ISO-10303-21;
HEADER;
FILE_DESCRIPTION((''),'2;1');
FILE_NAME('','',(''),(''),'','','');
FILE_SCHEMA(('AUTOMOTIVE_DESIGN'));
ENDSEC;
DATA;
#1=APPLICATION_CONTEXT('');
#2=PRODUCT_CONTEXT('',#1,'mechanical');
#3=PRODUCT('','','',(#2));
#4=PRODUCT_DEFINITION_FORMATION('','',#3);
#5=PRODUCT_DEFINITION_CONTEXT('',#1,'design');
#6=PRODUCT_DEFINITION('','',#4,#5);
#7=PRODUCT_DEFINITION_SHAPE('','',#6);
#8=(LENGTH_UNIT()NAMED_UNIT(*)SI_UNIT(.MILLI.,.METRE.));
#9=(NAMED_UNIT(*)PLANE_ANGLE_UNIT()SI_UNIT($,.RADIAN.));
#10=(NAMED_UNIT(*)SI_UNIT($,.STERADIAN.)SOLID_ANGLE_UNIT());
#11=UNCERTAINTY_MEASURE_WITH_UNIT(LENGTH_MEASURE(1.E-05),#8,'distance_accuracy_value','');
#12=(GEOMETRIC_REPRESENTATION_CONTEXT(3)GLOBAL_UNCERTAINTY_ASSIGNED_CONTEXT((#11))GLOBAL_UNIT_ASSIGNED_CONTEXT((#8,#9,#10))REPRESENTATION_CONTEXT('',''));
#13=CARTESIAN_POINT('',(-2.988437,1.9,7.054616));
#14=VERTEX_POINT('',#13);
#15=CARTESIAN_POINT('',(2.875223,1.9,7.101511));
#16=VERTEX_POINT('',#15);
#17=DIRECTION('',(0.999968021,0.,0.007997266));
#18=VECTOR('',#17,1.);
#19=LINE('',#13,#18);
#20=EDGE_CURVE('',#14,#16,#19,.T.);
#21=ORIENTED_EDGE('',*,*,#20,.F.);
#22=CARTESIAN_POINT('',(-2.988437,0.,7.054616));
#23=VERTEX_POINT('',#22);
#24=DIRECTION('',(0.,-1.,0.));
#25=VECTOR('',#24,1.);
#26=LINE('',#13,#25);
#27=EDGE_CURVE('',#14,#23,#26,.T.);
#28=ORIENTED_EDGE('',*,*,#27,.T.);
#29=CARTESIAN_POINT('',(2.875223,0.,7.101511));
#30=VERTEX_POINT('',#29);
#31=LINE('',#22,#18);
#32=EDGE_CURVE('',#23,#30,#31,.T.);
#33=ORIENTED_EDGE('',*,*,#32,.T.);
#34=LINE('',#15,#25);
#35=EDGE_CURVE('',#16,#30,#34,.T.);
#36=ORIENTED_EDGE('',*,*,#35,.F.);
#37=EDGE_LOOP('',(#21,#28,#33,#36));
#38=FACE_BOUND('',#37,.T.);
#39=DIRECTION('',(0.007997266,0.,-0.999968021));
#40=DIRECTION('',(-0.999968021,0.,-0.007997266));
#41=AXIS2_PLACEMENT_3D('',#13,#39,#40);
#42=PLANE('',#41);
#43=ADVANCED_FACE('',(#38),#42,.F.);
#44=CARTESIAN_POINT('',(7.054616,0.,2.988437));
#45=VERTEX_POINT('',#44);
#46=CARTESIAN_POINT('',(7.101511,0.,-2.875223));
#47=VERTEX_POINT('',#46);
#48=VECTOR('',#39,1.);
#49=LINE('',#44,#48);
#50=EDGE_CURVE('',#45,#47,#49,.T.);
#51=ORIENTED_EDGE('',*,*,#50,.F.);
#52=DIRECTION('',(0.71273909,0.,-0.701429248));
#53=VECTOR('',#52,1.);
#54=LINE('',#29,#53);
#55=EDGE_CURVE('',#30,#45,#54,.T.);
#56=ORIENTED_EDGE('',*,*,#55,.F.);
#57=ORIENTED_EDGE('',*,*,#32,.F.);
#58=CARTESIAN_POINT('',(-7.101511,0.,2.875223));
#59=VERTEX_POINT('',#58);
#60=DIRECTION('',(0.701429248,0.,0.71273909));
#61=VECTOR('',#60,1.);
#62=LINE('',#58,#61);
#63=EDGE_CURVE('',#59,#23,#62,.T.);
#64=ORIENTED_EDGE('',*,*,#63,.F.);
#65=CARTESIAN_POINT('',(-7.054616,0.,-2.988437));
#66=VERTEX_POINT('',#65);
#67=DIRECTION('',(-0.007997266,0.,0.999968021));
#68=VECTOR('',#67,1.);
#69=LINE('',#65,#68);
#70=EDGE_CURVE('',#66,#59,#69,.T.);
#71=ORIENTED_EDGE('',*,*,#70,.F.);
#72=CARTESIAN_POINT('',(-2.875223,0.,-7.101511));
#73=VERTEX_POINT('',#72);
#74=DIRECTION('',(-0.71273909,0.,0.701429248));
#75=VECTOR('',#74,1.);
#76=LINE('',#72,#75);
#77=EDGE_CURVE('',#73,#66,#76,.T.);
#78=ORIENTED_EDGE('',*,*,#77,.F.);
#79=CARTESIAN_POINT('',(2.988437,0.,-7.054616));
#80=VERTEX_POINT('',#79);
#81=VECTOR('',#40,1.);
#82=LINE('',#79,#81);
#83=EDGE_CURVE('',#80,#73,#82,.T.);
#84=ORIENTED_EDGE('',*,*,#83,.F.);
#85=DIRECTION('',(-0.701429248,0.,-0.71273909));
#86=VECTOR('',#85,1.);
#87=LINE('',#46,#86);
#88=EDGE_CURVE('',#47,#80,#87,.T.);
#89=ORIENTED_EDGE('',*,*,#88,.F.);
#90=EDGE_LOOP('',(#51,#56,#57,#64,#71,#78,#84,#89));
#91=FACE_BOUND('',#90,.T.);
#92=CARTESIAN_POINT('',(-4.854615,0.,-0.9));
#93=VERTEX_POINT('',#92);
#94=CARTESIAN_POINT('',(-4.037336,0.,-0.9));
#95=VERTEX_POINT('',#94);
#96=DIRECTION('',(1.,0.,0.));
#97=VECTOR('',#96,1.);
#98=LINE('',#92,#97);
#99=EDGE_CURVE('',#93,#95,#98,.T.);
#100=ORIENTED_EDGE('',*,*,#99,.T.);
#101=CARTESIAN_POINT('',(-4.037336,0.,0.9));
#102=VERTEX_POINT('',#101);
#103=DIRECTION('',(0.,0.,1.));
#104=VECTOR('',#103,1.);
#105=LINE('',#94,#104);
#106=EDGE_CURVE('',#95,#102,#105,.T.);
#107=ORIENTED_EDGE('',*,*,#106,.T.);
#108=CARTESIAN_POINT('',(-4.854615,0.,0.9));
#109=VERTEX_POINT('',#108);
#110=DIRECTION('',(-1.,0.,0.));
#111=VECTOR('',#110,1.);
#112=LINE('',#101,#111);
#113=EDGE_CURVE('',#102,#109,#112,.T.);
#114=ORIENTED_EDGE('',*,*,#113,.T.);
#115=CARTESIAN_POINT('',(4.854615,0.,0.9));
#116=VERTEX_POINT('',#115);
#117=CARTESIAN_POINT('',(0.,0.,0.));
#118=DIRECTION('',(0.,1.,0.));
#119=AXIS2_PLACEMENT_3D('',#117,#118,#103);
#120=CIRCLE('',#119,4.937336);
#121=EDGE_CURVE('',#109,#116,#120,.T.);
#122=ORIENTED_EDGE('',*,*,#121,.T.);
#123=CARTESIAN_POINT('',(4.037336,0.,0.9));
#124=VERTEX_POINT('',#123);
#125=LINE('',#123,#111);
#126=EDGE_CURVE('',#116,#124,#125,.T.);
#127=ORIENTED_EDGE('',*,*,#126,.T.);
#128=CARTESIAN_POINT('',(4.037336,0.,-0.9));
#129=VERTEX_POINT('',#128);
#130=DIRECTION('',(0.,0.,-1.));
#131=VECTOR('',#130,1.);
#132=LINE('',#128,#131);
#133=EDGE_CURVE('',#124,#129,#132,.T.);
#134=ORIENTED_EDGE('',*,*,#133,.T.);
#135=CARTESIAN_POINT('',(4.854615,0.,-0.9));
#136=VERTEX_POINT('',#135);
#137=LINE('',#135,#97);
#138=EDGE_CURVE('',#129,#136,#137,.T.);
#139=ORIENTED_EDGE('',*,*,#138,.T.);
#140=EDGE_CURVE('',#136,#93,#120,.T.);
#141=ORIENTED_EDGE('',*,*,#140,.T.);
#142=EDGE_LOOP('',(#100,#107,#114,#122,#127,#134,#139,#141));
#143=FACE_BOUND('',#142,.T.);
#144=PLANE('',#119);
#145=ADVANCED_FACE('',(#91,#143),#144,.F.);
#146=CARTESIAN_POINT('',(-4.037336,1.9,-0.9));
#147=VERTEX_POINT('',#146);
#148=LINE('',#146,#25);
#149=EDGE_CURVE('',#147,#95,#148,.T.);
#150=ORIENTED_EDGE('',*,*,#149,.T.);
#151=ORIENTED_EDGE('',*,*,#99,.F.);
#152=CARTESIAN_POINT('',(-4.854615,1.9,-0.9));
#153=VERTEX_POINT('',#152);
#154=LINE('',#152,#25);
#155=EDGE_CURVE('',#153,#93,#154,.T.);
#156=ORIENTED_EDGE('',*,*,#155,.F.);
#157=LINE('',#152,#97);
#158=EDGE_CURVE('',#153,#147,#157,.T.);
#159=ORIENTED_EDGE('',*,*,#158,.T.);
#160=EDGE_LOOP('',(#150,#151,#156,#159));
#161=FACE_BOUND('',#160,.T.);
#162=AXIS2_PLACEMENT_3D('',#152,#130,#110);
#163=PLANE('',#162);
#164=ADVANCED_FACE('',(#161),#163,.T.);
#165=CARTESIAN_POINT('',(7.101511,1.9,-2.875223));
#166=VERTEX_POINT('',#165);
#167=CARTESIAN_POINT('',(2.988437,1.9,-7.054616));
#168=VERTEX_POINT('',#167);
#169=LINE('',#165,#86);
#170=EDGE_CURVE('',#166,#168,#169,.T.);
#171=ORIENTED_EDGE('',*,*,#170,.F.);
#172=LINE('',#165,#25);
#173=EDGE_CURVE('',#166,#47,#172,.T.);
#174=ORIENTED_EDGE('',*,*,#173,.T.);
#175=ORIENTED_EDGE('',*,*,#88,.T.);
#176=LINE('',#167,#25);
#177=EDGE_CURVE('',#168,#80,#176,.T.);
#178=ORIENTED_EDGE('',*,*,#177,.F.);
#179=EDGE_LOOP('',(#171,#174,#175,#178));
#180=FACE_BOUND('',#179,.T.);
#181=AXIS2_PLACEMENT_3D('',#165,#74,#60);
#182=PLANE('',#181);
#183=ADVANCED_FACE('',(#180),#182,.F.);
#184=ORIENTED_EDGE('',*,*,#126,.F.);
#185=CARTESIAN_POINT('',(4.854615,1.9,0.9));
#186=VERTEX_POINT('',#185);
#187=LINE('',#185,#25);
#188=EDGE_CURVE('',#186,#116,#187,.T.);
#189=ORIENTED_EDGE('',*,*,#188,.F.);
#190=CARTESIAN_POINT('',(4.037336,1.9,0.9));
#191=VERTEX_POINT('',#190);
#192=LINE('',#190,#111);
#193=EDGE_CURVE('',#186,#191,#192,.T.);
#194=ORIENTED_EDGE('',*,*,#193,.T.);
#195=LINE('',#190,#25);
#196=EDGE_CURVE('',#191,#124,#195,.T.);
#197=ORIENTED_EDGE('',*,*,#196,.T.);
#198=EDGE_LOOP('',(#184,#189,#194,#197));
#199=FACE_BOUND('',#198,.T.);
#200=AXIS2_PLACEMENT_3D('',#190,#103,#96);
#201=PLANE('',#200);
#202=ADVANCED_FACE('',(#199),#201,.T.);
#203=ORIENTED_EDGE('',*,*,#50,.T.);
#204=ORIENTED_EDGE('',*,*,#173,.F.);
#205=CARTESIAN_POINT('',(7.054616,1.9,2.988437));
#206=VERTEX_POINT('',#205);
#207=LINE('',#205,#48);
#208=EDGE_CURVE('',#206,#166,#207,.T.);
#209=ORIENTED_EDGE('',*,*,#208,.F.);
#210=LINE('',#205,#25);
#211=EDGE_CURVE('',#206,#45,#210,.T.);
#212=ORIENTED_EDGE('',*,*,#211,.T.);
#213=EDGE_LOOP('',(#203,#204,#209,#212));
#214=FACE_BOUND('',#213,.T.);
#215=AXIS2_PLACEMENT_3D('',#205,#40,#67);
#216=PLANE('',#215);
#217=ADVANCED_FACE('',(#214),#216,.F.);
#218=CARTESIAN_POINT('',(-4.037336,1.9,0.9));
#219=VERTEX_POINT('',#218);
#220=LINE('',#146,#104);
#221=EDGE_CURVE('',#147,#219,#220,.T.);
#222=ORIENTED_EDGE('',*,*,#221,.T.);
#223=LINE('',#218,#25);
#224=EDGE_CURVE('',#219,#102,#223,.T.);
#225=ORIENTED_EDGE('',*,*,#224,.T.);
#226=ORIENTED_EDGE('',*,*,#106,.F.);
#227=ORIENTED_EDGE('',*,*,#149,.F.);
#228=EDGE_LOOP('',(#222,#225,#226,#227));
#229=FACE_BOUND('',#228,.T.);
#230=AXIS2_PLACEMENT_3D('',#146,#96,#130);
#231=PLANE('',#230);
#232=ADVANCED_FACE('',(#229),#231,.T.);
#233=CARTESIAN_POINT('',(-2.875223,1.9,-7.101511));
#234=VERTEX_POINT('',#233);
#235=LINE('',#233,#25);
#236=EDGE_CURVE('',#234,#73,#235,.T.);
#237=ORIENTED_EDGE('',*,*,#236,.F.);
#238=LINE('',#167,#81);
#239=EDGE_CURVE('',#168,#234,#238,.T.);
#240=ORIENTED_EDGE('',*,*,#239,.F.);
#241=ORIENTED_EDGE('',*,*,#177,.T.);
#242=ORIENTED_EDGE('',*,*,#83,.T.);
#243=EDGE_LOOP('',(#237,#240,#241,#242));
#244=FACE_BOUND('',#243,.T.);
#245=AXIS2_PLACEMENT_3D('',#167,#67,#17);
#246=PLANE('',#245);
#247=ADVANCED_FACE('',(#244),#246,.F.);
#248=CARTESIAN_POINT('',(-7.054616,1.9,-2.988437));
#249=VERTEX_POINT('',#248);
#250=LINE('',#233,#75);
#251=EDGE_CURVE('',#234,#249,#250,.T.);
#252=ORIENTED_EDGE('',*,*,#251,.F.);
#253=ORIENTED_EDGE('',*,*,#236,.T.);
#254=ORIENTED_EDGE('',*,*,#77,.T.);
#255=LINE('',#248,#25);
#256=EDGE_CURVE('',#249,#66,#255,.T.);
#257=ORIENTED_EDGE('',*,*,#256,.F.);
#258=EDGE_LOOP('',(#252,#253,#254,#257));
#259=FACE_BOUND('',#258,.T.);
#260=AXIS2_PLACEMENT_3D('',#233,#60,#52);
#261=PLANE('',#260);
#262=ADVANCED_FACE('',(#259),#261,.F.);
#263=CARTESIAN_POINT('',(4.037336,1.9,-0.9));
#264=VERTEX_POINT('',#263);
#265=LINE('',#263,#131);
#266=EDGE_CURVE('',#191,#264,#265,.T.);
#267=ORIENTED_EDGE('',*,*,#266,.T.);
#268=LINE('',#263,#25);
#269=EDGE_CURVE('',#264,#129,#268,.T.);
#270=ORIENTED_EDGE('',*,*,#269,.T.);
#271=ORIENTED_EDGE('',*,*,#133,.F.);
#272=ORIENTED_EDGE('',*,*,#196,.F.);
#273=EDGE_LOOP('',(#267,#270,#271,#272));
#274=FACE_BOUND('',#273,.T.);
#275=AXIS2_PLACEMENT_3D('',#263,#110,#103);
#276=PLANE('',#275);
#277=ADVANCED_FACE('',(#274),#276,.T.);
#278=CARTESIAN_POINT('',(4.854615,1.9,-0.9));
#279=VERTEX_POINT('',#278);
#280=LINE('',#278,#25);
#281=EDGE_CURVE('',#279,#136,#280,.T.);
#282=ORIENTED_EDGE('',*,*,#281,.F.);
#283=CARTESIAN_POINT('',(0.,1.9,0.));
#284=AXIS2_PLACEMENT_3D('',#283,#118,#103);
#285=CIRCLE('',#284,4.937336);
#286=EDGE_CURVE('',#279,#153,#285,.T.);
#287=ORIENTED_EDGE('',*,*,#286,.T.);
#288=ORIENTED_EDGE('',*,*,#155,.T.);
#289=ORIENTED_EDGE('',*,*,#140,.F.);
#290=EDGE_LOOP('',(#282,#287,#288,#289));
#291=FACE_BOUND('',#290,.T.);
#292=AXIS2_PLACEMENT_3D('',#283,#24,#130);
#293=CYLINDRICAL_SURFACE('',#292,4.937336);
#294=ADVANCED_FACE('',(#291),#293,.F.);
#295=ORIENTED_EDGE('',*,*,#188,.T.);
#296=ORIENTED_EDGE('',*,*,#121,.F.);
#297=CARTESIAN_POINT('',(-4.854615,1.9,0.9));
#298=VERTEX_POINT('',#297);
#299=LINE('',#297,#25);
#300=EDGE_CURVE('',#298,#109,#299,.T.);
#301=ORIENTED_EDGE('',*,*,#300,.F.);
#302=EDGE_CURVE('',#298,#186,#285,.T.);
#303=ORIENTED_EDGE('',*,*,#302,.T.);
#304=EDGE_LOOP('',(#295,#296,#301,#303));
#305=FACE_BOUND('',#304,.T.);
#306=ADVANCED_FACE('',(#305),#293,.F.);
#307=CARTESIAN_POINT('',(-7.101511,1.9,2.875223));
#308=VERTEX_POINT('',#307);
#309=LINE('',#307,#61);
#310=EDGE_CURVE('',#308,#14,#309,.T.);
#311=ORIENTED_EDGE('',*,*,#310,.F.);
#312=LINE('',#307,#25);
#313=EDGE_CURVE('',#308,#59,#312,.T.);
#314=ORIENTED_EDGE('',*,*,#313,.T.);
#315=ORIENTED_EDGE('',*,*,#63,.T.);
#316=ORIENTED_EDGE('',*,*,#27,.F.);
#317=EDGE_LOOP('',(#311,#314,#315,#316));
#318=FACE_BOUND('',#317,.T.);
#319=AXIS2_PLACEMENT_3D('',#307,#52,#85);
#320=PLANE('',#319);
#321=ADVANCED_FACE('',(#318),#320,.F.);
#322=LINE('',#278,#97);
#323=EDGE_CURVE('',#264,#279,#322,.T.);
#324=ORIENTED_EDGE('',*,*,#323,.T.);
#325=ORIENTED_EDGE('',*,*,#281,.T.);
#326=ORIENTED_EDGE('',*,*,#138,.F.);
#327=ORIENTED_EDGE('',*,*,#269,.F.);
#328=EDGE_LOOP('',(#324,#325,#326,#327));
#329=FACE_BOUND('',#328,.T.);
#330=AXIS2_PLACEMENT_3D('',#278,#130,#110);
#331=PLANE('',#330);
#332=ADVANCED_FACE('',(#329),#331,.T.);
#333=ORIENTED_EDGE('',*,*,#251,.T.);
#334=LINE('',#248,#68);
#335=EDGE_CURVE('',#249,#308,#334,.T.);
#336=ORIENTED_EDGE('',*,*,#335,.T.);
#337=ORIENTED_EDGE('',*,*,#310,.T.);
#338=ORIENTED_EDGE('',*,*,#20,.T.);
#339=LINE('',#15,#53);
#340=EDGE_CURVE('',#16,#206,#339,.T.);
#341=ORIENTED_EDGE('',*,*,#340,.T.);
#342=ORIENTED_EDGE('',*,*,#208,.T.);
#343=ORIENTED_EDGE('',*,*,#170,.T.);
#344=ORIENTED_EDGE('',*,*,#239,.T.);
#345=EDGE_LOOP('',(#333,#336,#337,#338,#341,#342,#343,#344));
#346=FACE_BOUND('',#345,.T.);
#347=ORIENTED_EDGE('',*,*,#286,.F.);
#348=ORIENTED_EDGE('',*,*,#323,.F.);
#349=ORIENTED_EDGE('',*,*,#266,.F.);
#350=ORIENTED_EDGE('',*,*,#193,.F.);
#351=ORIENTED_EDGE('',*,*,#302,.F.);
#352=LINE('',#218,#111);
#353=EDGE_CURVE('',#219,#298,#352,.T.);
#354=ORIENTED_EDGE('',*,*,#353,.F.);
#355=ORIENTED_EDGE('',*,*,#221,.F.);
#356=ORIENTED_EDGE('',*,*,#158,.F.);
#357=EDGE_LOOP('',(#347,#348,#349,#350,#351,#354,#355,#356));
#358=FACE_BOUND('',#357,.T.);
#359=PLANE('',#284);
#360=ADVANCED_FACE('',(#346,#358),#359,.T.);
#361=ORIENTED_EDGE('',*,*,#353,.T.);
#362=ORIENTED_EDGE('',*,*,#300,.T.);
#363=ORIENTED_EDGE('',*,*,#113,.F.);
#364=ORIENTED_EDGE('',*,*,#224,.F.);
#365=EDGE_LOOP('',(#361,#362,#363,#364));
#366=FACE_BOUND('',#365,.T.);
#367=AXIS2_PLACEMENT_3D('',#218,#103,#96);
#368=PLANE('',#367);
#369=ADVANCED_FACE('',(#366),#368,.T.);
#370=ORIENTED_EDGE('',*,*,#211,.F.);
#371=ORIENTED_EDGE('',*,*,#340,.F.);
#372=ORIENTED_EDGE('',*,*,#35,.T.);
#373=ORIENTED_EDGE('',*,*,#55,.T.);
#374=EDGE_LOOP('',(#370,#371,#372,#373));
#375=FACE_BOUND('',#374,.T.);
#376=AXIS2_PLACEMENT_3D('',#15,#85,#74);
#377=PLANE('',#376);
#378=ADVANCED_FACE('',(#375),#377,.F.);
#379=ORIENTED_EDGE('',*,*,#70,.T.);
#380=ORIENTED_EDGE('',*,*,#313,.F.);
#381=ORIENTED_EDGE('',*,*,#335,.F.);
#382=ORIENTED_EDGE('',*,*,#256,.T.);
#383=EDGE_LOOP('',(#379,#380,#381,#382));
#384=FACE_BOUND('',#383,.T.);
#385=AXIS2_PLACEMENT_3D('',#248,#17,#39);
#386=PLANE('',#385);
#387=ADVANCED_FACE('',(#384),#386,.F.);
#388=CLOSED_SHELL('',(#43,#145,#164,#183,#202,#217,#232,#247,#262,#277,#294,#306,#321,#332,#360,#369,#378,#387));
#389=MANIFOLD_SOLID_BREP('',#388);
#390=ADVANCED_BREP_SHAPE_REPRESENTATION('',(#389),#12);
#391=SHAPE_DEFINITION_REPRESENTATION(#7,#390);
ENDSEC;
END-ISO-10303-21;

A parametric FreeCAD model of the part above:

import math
import FreeCAD as App
import Part
import Sketcher
from FreeCAD import Vector
Q = App.Units.Quantity


def add_polygon(sketch, points):
    """Adds a closed chain of lines whose ends are joined by coincident constraints."""
    first, n = sketch.GeometryCount, len(points)
    for a, b in zip(points, points[1:] + points[:1]):
        sketch.addGeometry(Part.LineSegment(App.Vector(*a, 0), App.Vector(*b, 0)), False)
    for i in range(n):
        sketch.addConstraint(Sketcher.Constraint("Coincident", first + i, 2, first + (i + 1) % n, 1))

doc = App.newDocument("Part")
body = doc.addObject("PartDesign::Body", "Body")

# Sketch on XZ plane
sketch1 = body.newObject("Sketcher::SketchObject", "Sketch")
sketch1.AttachmentSupport = (doc.getObject("XZ_Plane"), [""])
sketch1.MapMode = "FlatFace"
add_polygon(sketch1, [(2.9, 7.1), (7.1, 3), (7.1, -2.9), (3, -7.1), (-2.9, -7.1), (-7.1, -3), (-7.1, 2.9), (-3, 7.1)])  # lines 0-7
sketch1.addGeometry(Part.LineSegment(Vector(-4, -0.9, 0), Vector(-4.9, -0.9, 0)), False)  # 8
sketch1.addGeometry(Part.ArcOfCircle(Part.Circle(Vector(0, 0, 0), Vector(0, 0, 1), 4.9), math.radians(-169), math.radians(-11)), False)  # 9
sketch1.addGeometry(Part.LineSegment(Vector(4.9, -0.9, 0), Vector(4, -0.9, 0)), False)  # 10
sketch1.addGeometry(Part.LineSegment(Vector(4, -0.9, 0), Vector(4, 0.9, 0)), False)  # 11
sketch1.addGeometry(Part.LineSegment(Vector(4, 0.9, 0), Vector(4.9, 0.9, 0)), False)  # 12
sketch1.addGeometry(Part.ArcOfCircle(Part.Circle(Vector(0, 0, 0), Vector(0, 0, 1), 4.9), math.radians(11), math.radians(169)), False)  # 13
sketch1.addGeometry(Part.LineSegment(Vector(-4.9, 0.9, 0), Vector(-4, 0.9, 0)), False)  # 14
sketch1.addGeometry(Part.LineSegment(Vector(-4, 0.9, 0), Vector(-4, -0.9, 0)), False)  # 15
sketch1.addConstraint([
    Sketcher.Constraint("Coincident", 8, 2, 9, 1),
    Sketcher.Constraint("Coincident", 9, 2, 10, 1),
    Sketcher.Constraint("Coincident", 10, 2, 11, 1),
    Sketcher.Constraint("Coincident", 11, 2, 12, 1),
    Sketcher.Constraint("Coincident", 12, 2, 13, 1),
    Sketcher.Constraint("Coincident", 13, 2, 14, 1),
    Sketcher.Constraint("Coincident", 14, 2, 15, 1),
    Sketcher.Constraint("Coincident", 15, 2, 8, 1),
    Sketcher.Constraint("Horizontal", 8),
    Sketcher.Constraint("Horizontal", 10),
    Sketcher.Constraint("Vertical", 11),
    Sketcher.Constraint("Horizontal", 12),
    Sketcher.Constraint("Horizontal", 14),
    Sketcher.Constraint("Vertical", 15),
    Sketcher.Constraint("Coincident", 9, 3, -1, 1),
    Sketcher.Constraint("Coincident", 13, 3, -1, 1),
    Sketcher.Constraint("Equal", 9, 13),
    Sketcher.Constraint("Symmetric", 0, 2, 4, 2, -1, 1),
    Sketcher.Constraint("Symmetric", 1, 2, 5, 2, -1, 1),
    Sketcher.Constraint("Symmetric", 2, 2, 6, 2, -1, 1),
    Sketcher.Constraint("Symmetric", 3, 2, 7, 2, -1, 1),
    Sketcher.Constraint("Symmetric", 10, 2, 14, 2, -1, 1),
    Sketcher.Constraint("Perpendicular", 0, 2),
    Sketcher.Constraint("Perpendicular", 1, 3),
    Sketcher.Constraint("Horizontal", 8, 2, 9, 2),
    Sketcher.Constraint("Horizontal", 12, 2, 13, 2),
    Sketcher.Constraint("Equal", 0, 1),
    Sketcher.Constraint("Equal", 1, 2),
    Sketcher.Constraint("Equal", 2, 3),
    Sketcher.Constraint("DistanceY", 11, 1, 11, 2, Q("1.8 mm")),
    Sketcher.Constraint("DistanceX", 4, 2, 8, 2, Q("2.200001 mm")),
    Sketcher.Constraint("Radius", 9, Q("4.937336 mm")),
    Sketcher.Constraint("DistanceX", 8, 2, 8, 1, Q("0.817279 mm")),
    Sketcher.Constraint("DistanceX", -1, 1, 1, 2, Q("7.101511 mm")),
    Sketcher.Constraint("DistanceX", 2, 2, 0, 2, Q("4.066179 mm")),
])
pad1 = body.newObject("PartDesign::Pad", "Pad")
pad1.Profile = sketch1
pad1.Length = 1.9
pad1.Reversed = True

doc.recompute()
